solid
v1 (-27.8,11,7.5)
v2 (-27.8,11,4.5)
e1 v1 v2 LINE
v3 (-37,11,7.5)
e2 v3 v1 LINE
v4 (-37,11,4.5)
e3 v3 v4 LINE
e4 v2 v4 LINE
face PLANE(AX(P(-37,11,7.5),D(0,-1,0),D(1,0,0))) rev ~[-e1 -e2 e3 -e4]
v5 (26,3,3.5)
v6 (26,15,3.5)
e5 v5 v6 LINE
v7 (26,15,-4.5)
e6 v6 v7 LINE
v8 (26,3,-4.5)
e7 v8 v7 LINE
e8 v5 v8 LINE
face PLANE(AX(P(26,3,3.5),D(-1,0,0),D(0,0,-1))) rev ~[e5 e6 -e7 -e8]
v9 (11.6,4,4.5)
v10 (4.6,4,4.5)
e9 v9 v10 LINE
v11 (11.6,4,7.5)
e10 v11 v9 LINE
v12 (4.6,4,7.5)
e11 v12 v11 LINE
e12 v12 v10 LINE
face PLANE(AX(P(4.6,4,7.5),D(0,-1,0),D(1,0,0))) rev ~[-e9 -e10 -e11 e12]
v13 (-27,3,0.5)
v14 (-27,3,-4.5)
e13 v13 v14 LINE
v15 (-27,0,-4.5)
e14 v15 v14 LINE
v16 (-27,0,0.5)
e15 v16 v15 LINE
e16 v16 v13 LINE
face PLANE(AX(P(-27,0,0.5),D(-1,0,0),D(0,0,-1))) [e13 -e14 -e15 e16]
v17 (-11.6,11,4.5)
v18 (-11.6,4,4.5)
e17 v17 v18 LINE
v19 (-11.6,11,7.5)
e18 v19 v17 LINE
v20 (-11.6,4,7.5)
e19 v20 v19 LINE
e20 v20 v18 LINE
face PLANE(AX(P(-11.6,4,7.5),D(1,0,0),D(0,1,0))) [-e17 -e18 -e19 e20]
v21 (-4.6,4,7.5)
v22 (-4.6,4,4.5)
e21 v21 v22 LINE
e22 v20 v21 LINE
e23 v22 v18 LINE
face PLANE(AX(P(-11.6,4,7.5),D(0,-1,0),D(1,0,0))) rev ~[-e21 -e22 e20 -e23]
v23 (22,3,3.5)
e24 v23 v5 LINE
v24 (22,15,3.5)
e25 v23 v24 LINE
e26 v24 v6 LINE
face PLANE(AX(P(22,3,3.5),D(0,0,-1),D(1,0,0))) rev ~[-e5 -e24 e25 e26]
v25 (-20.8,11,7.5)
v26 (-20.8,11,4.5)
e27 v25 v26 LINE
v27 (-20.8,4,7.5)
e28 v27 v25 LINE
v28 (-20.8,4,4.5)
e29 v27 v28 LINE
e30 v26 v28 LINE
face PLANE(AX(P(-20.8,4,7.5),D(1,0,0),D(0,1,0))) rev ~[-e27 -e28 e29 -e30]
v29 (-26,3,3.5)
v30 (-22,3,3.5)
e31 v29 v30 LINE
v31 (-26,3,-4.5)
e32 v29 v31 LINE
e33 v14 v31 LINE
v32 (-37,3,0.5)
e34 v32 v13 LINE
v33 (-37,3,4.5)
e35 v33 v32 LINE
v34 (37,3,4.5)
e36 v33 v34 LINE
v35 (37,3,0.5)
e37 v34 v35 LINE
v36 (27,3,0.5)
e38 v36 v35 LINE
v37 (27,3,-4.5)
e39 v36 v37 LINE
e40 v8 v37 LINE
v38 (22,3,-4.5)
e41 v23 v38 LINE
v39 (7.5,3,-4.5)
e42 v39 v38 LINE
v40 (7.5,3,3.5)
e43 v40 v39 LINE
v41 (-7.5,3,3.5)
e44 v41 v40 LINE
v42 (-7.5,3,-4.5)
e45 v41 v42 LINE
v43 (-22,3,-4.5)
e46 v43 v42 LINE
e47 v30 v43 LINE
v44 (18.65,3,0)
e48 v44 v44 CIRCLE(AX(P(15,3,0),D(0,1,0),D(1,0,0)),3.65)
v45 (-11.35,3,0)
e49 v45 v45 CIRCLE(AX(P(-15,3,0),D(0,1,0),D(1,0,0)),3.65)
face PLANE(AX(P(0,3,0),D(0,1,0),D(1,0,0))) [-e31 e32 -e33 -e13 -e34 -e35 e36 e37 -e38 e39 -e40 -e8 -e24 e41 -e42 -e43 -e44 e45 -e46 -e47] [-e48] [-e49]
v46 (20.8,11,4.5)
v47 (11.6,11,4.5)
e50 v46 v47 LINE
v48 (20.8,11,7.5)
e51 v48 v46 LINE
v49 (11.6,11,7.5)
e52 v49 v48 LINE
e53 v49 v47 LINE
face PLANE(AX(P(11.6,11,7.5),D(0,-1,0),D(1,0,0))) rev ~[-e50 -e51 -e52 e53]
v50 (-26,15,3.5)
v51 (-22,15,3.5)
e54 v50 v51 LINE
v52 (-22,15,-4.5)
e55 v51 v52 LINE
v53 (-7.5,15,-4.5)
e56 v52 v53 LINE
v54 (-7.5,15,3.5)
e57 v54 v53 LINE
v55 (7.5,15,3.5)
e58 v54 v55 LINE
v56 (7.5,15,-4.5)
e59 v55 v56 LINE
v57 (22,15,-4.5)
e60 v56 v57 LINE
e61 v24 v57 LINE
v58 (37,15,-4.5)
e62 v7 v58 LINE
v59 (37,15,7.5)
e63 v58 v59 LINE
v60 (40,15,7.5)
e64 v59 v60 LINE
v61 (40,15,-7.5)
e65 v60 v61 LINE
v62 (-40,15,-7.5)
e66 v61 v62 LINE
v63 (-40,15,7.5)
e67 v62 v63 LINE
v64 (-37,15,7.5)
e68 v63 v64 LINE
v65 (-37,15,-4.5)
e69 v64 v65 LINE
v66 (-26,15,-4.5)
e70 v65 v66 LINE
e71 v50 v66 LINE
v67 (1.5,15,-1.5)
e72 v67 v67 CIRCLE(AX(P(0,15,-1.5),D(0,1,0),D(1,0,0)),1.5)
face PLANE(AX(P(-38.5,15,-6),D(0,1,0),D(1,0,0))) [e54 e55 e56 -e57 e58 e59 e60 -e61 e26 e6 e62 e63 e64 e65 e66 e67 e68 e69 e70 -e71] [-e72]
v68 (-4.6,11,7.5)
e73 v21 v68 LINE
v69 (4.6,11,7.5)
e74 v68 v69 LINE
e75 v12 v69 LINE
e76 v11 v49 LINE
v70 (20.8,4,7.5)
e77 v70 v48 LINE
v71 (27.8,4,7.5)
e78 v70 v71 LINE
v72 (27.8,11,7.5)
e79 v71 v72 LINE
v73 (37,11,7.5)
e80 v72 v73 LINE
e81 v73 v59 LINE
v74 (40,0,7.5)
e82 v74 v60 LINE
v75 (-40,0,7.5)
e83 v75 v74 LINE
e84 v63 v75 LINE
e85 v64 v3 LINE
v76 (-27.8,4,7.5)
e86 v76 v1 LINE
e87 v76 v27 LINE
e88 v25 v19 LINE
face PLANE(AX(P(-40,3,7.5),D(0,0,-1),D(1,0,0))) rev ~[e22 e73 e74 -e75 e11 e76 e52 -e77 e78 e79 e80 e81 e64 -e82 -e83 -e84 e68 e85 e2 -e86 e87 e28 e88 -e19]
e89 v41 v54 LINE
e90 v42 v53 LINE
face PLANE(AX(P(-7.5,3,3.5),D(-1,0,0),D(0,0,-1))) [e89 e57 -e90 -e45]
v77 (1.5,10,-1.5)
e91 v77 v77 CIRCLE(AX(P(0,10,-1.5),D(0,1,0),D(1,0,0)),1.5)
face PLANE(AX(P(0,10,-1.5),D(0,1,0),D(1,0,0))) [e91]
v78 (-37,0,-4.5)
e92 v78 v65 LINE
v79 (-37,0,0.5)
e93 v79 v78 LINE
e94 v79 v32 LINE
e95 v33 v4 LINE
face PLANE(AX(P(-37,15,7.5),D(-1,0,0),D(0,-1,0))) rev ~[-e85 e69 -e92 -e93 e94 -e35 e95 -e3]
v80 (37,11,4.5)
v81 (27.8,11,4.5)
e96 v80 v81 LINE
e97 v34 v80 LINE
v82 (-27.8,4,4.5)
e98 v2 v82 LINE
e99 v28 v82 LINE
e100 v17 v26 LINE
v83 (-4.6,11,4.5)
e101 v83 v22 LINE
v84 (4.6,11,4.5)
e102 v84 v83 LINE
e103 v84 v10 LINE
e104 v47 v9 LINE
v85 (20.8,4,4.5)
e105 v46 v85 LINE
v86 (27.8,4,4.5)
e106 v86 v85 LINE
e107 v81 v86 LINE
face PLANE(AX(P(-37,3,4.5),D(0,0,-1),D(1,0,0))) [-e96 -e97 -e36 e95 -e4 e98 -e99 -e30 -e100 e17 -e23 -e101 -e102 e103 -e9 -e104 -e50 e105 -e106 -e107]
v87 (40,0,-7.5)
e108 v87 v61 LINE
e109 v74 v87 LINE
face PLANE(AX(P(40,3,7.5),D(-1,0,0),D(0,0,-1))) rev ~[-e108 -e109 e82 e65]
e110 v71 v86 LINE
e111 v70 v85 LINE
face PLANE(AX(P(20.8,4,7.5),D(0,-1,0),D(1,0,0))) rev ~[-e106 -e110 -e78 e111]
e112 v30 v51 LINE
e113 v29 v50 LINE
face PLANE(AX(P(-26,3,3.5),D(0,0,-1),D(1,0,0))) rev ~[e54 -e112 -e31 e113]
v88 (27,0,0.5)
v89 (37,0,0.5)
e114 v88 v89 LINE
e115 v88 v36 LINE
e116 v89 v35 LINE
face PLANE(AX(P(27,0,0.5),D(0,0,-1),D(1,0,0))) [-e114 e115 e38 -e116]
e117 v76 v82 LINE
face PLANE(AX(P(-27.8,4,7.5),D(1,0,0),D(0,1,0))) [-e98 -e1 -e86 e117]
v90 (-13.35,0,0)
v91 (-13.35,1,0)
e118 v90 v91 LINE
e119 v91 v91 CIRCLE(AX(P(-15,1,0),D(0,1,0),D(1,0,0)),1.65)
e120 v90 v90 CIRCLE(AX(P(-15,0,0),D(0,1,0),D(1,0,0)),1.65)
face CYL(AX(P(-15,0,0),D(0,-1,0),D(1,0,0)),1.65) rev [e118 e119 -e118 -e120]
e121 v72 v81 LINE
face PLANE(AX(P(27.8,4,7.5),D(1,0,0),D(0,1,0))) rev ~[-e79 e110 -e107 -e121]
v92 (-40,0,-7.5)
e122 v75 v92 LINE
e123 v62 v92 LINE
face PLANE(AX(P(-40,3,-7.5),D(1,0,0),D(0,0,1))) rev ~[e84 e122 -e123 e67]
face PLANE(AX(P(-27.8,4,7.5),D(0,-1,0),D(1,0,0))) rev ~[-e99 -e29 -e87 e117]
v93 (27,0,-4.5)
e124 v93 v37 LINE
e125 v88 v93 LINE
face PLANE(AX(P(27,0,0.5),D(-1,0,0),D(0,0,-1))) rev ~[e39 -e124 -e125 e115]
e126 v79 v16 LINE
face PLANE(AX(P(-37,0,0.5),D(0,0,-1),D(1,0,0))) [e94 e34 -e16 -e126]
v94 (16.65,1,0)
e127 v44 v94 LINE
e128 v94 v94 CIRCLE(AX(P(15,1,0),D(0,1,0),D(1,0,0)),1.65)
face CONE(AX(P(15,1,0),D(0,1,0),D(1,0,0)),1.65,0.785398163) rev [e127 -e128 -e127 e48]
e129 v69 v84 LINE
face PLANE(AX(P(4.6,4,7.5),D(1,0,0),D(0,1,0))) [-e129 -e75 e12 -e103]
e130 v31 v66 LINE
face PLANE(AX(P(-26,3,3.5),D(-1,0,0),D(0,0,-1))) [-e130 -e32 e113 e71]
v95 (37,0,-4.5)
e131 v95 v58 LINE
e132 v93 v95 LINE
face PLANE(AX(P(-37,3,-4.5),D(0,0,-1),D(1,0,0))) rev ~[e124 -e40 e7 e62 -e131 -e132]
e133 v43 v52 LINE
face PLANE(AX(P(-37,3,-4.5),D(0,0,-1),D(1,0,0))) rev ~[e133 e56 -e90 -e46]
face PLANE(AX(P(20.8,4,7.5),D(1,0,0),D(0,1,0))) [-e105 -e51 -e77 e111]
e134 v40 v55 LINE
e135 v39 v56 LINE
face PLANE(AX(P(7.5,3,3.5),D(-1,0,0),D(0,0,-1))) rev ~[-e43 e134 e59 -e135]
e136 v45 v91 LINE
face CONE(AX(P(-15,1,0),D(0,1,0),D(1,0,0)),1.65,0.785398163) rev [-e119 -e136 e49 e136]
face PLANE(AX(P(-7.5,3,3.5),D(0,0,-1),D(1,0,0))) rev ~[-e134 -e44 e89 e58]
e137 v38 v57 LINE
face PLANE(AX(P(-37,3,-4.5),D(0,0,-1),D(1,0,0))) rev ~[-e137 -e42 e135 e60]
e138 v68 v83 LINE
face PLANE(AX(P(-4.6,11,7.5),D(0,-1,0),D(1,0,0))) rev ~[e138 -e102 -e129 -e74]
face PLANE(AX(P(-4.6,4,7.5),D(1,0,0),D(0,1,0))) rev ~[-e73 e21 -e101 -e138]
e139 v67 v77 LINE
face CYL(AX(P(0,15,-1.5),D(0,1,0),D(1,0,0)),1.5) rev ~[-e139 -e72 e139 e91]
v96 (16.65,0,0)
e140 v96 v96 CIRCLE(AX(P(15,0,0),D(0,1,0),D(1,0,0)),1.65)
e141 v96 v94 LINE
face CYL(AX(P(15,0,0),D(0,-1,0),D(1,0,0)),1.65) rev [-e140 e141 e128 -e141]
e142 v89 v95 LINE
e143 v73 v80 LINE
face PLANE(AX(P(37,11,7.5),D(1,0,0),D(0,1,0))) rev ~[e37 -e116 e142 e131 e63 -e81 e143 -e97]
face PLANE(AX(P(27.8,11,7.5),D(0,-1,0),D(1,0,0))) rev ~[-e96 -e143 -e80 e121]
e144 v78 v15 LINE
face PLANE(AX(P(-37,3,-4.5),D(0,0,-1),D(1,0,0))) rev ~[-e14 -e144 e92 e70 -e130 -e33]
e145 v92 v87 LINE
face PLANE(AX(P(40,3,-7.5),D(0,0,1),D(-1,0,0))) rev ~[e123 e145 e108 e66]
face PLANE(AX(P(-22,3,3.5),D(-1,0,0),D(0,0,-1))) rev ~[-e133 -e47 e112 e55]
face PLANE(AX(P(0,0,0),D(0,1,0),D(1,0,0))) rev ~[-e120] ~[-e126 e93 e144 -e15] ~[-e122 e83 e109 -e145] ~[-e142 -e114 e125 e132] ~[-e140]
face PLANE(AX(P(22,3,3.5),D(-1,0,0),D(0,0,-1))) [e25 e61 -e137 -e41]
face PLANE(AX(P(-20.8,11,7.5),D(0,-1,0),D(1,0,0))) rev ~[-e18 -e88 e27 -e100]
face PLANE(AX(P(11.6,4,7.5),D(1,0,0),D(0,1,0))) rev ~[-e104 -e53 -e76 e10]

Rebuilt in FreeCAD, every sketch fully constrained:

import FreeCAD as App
import Part
import Sketcher
from FreeCAD import Vector


def edges_at(feature, points):
    """Names of the edges that pass closest to the given points."""
    edges = feature.Shape.Edges
    near = lambda p: min(range(len(edges)), key=lambda i: edges[i].distToShape(Part.Vertex(*p))[0])
    return sorted({f"Edge{near(p) + 1}" for p in points})


def add_polygon(sketch, points):
    """Adds a closed chain of lines whose ends are joined by coincident constraints."""
    first, n = sketch.GeometryCount, len(points)
    for a, b in zip(points, points[1:] + points[:1]):
        sketch.addGeometry(Part.LineSegment(App.Vector(*a, 0), App.Vector(*b, 0)), False)
    for i in range(n):
        sketch.addConstraint(Sketcher.Constraint("Coincident", first + i, 2, first + (i + 1) % n, 1))

doc = App.newDocument("Part")
body = doc.addObject("PartDesign::Body", "Body")

# Sketch on XZ plane
sketch1 = doc.addObject("Sketcher::SketchObject", "Sketch")
body.addObject(sketch1)
sketch1.AttachmentSupport = (doc.XZ_Plane, [""])
sketch1.MapMode = "FlatFace"
add_polygon(sketch1, [(-40, -7.5), (-40, 7.5), (40, 7.5), (40, -7.5)])  # lines 0-3
sketch1.addGeometry(Part.Circle(Vector(-15, 0, 0), Vector(0, 0, 1), 1.6), False)  # 4
sketch1.addGeometry(Part.Circle(Vector(15, 0, 0), Vector(0, 0, 1), 1.6), False)  # 5
add_polygon(sketch1, [(-27, 0.5), (-37, 0.5), (-37, -4.5), (-27, -4.5)])  # lines 6-9
add_polygon(sketch1, [(37, 0.5), (27, 0.5), (27, -4.5), (37, -4.5)])  # lines 10-13
sketch1.addConstraint(Sketcher.Constraint("Vertical", 0))
sketch1.addConstraint(Sketcher.Constraint("Horizontal", 1))
sketch1.addConstraint(Sketcher.Constraint("Vertical", 2))
sketch1.addConstraint(Sketcher.Constraint("Horizontal", 3))
sketch1.addConstraint(Sketcher.Constraint("Horizontal", 6))
sketch1.addConstraint(Sketcher.Constraint("Vertical", 7))
sketch1.addConstraint(Sketcher.Constraint("Horizontal", 8))
sketch1.addConstraint(Sketcher.Constraint("Vertical", 9))
sketch1.addConstraint(Sketcher.Constraint("Horizontal", 10))
sketch1.addConstraint(Sketcher.Constraint("Vertical", 11))
sketch1.addConstraint(Sketcher.Constraint("Horizontal", 12))
sketch1.addConstraint(Sketcher.Constraint("Vertical", 13))
sketch1.addConstraint(Sketcher.Constraint("Equal", 4, 5))
sketch1.addConstraint(Sketcher.Constraint("Symmetric", 4, 3, 5, 3, -1, 1))
sketch1.addConstraint(Sketcher.Constraint("Symmetric", 0, 2, 2, 2, -1, 1))
sketch1.addConstraint(Sketcher.Constraint("Symmetric", 9, 2, 10, 2, -2))
sketch1.addConstraint(Sketcher.Constraint("Symmetric", 7, 2, 12, 2, -2))
sketch1.addConstraint(Sketcher.Constraint("PointOnObject", 4, 3, -1))
sketch1.addConstraint(Sketcher.Constraint("Diameter", 4, 3.3))
sketch1.addConstraint(Sketcher.Constraint("DistanceX", 1, 1, 1, 2, 80.0))
sketch1.addConstraint(Sketcher.Constraint("DistanceX", 6, 2, 6, 1, 10.0))
sketch1.addConstraint(Sketcher.Constraint("DistanceY", 0, 1, 0, 2, 15.0))
sketch1.addConstraint(Sketcher.Constraint("DistanceY", 7, 2, 7, 1, 5.0))
sketch1.addConstraint(Sketcher.Constraint("DistanceX", 4, 3, -1, 1, 15.0))
sketch1.addConstraint(Sketcher.Constraint("DistanceX", 6, 2, -1, 1, 37.0))
sketch1.addConstraint(Sketcher.Constraint("DistanceY", 6, 2, 0, 2, 7.0))
pad1 = doc.addObject("PartDesign::Pad", "Pad")
body.addObject(pad1)
pad1.Profile = sketch1
pad1.Length = 3
pad1.Reversed = True

# Sketch on XZ plane
sketch2 = doc.addObject("Sketcher::SketchObject", "Sketch001")
body.addObject(sketch2)
sketch2.AttachmentSupport = (doc.XZ_Plane, [""])
sketch2.MapMode = "FlatFace"
sketch2.AttachmentOffset = App.Placement(Vector(0, 0, -3), App.Rotation())
add_polygon(sketch2, [(-40, 8), (40, 8), (40, -8), (-40, -8)])  # lines 0-3
add_polygon(sketch2, [(37, 4), (-37, 4), (-37, -4), (37, -4)])  # lines 4-7
sketch2.addConstraint(Sketcher.Constraint("Horizontal", 0))
sketch2.addConstraint(Sketcher.Constraint("Vertical", 1))
sketch2.addConstraint(Sketcher.Constraint("Horizontal", 2))
sketch2.addConstraint(Sketcher.Constraint("Vertical", 3))
sketch2.addConstraint(Sketcher.Constraint("Horizontal", 4))
sketch2.addConstraint(Sketcher.Constraint("Vertical", 5))
sketch2.addConstraint(Sketcher.Constraint("Horizontal", 6))
sketch2.addConstraint(Sketcher.Constraint("Vertical", 7))
sketch2.addConstraint(Sketcher.Constraint("Symmetric", 0, 2, 2, 2, -1, 1))
sketch2.addConstraint(Sketcher.Constraint("Symmetric", 4, 2, 6, 2, -1, 1))
sketch2.addConstraint(Sketcher.Constraint("DistanceX", 0, 1, 0, 2, 80.0))
sketch2.addConstraint(Sketcher.Constraint("DistanceX", 4, 2, 4, 1, 74.0))
sketch2.addConstraint(Sketcher.Constraint("DistanceY", 1, 2, 1, 1, 15.0))
sketch2.addConstraint(Sketcher.Constraint("DistanceY", 5, 2, 5, 1, 9.0))
pad2 = doc.addObject("PartDesign::Pad", "Pad001")
body.addObject(pad2)
pad2.Profile = sketch2
pad2.Length = 12
pad2.Reversed = True

# Sketch on XY plane
sketch3 = doc.addObject("Sketcher::SketchObject", "Sketch002")
body.addObject(sketch3)
sketch3.AttachmentSupport = (doc.XY_Plane, [""])
sketch3.MapMode = "FlatFace"
sketch3.AttachmentOffset = App.Placement(Vector(0, 0, 7.5), App.Rotation())
add_polygon(sketch3, [(37, 11), (37, 15), (-37, 15), (-37, 11), (-27.8, 11), (-27.8, 4), (-20.8, 4), (-20.8, 11), (-11.6, 11), (-11.6, 4), (-4.6, 4), (-4.6, 11), (4.6, 11), (4.6, 4), (11.6, 4), (11.6, 11), (20.8, 11), (20.8, 4), (27.8, 4), (27.8, 11)])  # lines 0-19
sketch3.addConstraint(Sketcher.Constraint("Vertical", 0))
sketch3.addConstraint(Sketcher.Constraint("Horizontal", 1))
sketch3.addConstraint(Sketcher.Constraint("Vertical", 2))
sketch3.addConstraint(Sketcher.Constraint("Horizontal", 3))
sketch3.addConstraint(Sketcher.Constraint("Vertical", 4))
sketch3.addConstraint(Sketcher.Constraint("Horizontal", 5))
sketch3.addConstraint(Sketcher.Constraint("Vertical", 6))
sketch3.addConstraint(Sketcher.Constraint("Horizontal", 7))
sketch3.addConstraint(Sketcher.Constraint("Vertical", 8))
sketch3.addConstraint(Sketcher.Constraint("Horizontal", 9))
sketch3.addConstraint(Sketcher.Constraint("Vertical", 10))
sketch3.addConstraint(Sketcher.Constraint("Horizontal", 11))
sketch3.addConstraint(Sketcher.Constraint("Vertical", 12))
sketch3.addConstraint(Sketcher.Constraint("Horizontal", 13))
sketch3.addConstraint(Sketcher.Constraint("Vertical", 14))
sketch3.addConstraint(Sketcher.Constraint("Horizontal", 15))
sketch3.addConstraint(Sketcher.Constraint("Vertical", 16))
sketch3.addConstraint(Sketcher.Constraint("Horizontal", 17))
sketch3.addConstraint(Sketcher.Constraint("Vertical", 18))
sketch3.addConstraint(Sketcher.Constraint("Horizontal", 19))
sketch3.addConstraint(Sketcher.Constraint("Symmetric", 9, 2, 12, 2, -2))
sketch3.addConstraint(Sketcher.Constraint("Symmetric", 7, 2, 14, 2, -2))
sketch3.addConstraint(Sketcher.Constraint("Symmetric", 5, 2, 16, 2, -2))
sketch3.addConstraint(Sketcher.Constraint("Symmetric", 3, 2, 18, 2, -2))
sketch3.addConstraint(Sketcher.Constraint("Horizontal", 3, 2, 6, 2))
sketch3.addConstraint(Sketcher.Constraint("Horizontal", 5, 2, 8, 2))
sketch3.addConstraint(Sketcher.Constraint("Horizontal", 7, 2, 10, 2))
sketch3.addConstraint(Sketcher.Constraint("Equal", 3, 7))
sketch3.addConstraint(Sketcher.Constraint("Equal", 5, 9))
sketch3.addConstraint(Sketcher.Constraint("Equal", 7, 11))
sketch3.addConstraint(Sketcher.Constraint("Equal", 15, 19))
sketch3.addConstraint(Sketcher.Constraint("Equal", 17, 4))
sketch3.addConstraint(Sketcher.Constraint("DistanceX", 1, 2, 1, 1, 74.0))
sketch3.addConstraint(Sketcher.Constraint("DistanceX", 5, 1, 5, 2, 7.0))
sketch3.addConstraint(Sketcher.Constraint("DistanceY", 0, 1, 0, 2, 4.0))
sketch3.addConstraint(Sketcher.Constraint("DistanceY", -1, 1, 0, 2, 15.0))
pocket1 = doc.addObject("PartDesign::Pocket", "Pocket")
body.addObject(pocket1)
pocket1.Profile = sketch3
pocket1.Length = 5
doc.recompute()

chamfer = doc.addObject("PartDesign::Chamfer", "Chamfer")
body.addObject(chamfer)
chamfer.Base = (pocket1, edges_at(pocket1, [(13.35, 3, 0)]))
chamfer.Size = 2
doc.recompute()

chamfer2 = doc.addObject("PartDesign::Chamfer", "Chamfer001")
body.addObject(chamfer2)
chamfer2.Base = (chamfer, edges_at(chamfer, [(-16.65, 3, 0)]))
chamfer2.Size = 2

# Sketch on XZ plane
sketch4 = doc.addObject("Sketcher::SketchObject", "Sketch003")
body.addObject(sketch4)
sketch4.AttachmentSupport = (doc.XZ_Plane, [""])
sketch4.MapMode = "FlatFace"
sketch4.AttachmentOffset = App.Placement(Vector(0, 0, -3), App.Rotation())
add_polygon(sketch4, [(-7.5, -4.5), (-7.5, 3.5), (7.5, 3.5), (7.5, -4.5)])  # lines 0-3
add_polygon(sketch4, [(-26, -4.5), (-26, 3.5), (-22, 3.5), (-22, -4.5)])  # lines 4-7
add_polygon(sketch4, [(22, -4.5), (22, 3.5), (26, 3.5), (26, -4.5)])  # lines 8-11
sketch4.addConstraint(Sketcher.Constraint("Vertical", 0))
sketch4.addConstraint(Sketcher.Constraint("Horizontal", 1))
sketch4.addConstraint(Sketcher.Constraint("Vertical", 2))
sketch4.addConstraint(Sketcher.Constraint("Horizontal", 3))
sketch4.addConstraint(Sketcher.Constraint("Vertical", 4))
sketch4.addConstraint(Sketcher.Constraint("Horizontal", 5))
sketch4.addConstraint(Sketcher.Constraint("Vertical", 6))
sketch4.addConstraint(Sketcher.Constraint("Horizontal", 7))
sketch4.addConstraint(Sketcher.Constraint("Vertical", 8))
sketch4.addConstraint(Sketcher.Constraint("Horizontal", 9))
sketch4.addConstraint(Sketcher.Constraint("Vertical", 10))
sketch4.addConstraint(Sketcher.Constraint("Horizontal", 11))
sketch4.addConstraint(Sketcher.Constraint("Symmetric", 5, 2, 8, 2, -2))
sketch4.addConstraint(Sketcher.Constraint("Symmetric", 7, 2, 10, 2, -2))
sketch4.addConstraint(Sketcher.Constraint("Horizontal", 1, 2, 4, 2))
sketch4.addConstraint(Sketcher.Constraint("Horizontal", 3, 2, 6, 2))
sketch4.addConstraint(Sketcher.Constraint("DistanceX", 1, 1, 1, 2, 15.0))
sketch4.addConstraint(Sketcher.Constraint("DistanceX", 5, 1, 5, 2, 4.0))
sketch4.addConstraint(Sketcher.Constraint("DistanceY", 0, 1, 0, 2, 8.0))
sketch4.addConstraint(Sketcher.Constraint("DistanceX", 4, 2, -1, 1, 26.0))
sketch4.addConstraint(Sketcher.Constraint("DistanceX", 0, 2, -1, 1, 7.5))
sketch4.addConstraint(Sketcher.Constraint("DistanceY", -1, 1, 0, 2, 3.5))
pad3 = doc.addObject("PartDesign::Pad", "Pad002")
body.addObject(pad3)
pad3.Profile = sketch4
pad3.Length = 12
pad3.Reversed = True

# Sketch on XZ plane
sketch5 = doc.addObject("Sketcher::SketchObject", "Sketch004")
body.addObject(sketch5)
sketch5.AttachmentSupport = (doc.XZ_Plane, [""])
sketch5.MapMode = "FlatFace"
sketch5.AttachmentOffset = App.Placement(Vector(0, 0, -15), App.Rotation())
sketch5.addGeometry(Part.Circle(Vector(0, -1.5, 0), Vector(0, 0, 1), 1.5), False)
sketch5.addConstraint(Sketcher.Constraint("PointOnObject", 0, 3, -2))
sketch5.addConstraint(Sketcher.Constraint("Diameter", 0, 3.0))
sketch5.addConstraint(Sketcher.Constraint("DistanceY", 0, 3, -1, 1, 1.5))
pocket2 = doc.addObject("PartDesign::Pocket", "Pocket001")
body.addObject(pocket2)
pocket2.Profile = sketch5
pocket2.Length = 5
pocket2.Reversed = True

doc.recompute()
